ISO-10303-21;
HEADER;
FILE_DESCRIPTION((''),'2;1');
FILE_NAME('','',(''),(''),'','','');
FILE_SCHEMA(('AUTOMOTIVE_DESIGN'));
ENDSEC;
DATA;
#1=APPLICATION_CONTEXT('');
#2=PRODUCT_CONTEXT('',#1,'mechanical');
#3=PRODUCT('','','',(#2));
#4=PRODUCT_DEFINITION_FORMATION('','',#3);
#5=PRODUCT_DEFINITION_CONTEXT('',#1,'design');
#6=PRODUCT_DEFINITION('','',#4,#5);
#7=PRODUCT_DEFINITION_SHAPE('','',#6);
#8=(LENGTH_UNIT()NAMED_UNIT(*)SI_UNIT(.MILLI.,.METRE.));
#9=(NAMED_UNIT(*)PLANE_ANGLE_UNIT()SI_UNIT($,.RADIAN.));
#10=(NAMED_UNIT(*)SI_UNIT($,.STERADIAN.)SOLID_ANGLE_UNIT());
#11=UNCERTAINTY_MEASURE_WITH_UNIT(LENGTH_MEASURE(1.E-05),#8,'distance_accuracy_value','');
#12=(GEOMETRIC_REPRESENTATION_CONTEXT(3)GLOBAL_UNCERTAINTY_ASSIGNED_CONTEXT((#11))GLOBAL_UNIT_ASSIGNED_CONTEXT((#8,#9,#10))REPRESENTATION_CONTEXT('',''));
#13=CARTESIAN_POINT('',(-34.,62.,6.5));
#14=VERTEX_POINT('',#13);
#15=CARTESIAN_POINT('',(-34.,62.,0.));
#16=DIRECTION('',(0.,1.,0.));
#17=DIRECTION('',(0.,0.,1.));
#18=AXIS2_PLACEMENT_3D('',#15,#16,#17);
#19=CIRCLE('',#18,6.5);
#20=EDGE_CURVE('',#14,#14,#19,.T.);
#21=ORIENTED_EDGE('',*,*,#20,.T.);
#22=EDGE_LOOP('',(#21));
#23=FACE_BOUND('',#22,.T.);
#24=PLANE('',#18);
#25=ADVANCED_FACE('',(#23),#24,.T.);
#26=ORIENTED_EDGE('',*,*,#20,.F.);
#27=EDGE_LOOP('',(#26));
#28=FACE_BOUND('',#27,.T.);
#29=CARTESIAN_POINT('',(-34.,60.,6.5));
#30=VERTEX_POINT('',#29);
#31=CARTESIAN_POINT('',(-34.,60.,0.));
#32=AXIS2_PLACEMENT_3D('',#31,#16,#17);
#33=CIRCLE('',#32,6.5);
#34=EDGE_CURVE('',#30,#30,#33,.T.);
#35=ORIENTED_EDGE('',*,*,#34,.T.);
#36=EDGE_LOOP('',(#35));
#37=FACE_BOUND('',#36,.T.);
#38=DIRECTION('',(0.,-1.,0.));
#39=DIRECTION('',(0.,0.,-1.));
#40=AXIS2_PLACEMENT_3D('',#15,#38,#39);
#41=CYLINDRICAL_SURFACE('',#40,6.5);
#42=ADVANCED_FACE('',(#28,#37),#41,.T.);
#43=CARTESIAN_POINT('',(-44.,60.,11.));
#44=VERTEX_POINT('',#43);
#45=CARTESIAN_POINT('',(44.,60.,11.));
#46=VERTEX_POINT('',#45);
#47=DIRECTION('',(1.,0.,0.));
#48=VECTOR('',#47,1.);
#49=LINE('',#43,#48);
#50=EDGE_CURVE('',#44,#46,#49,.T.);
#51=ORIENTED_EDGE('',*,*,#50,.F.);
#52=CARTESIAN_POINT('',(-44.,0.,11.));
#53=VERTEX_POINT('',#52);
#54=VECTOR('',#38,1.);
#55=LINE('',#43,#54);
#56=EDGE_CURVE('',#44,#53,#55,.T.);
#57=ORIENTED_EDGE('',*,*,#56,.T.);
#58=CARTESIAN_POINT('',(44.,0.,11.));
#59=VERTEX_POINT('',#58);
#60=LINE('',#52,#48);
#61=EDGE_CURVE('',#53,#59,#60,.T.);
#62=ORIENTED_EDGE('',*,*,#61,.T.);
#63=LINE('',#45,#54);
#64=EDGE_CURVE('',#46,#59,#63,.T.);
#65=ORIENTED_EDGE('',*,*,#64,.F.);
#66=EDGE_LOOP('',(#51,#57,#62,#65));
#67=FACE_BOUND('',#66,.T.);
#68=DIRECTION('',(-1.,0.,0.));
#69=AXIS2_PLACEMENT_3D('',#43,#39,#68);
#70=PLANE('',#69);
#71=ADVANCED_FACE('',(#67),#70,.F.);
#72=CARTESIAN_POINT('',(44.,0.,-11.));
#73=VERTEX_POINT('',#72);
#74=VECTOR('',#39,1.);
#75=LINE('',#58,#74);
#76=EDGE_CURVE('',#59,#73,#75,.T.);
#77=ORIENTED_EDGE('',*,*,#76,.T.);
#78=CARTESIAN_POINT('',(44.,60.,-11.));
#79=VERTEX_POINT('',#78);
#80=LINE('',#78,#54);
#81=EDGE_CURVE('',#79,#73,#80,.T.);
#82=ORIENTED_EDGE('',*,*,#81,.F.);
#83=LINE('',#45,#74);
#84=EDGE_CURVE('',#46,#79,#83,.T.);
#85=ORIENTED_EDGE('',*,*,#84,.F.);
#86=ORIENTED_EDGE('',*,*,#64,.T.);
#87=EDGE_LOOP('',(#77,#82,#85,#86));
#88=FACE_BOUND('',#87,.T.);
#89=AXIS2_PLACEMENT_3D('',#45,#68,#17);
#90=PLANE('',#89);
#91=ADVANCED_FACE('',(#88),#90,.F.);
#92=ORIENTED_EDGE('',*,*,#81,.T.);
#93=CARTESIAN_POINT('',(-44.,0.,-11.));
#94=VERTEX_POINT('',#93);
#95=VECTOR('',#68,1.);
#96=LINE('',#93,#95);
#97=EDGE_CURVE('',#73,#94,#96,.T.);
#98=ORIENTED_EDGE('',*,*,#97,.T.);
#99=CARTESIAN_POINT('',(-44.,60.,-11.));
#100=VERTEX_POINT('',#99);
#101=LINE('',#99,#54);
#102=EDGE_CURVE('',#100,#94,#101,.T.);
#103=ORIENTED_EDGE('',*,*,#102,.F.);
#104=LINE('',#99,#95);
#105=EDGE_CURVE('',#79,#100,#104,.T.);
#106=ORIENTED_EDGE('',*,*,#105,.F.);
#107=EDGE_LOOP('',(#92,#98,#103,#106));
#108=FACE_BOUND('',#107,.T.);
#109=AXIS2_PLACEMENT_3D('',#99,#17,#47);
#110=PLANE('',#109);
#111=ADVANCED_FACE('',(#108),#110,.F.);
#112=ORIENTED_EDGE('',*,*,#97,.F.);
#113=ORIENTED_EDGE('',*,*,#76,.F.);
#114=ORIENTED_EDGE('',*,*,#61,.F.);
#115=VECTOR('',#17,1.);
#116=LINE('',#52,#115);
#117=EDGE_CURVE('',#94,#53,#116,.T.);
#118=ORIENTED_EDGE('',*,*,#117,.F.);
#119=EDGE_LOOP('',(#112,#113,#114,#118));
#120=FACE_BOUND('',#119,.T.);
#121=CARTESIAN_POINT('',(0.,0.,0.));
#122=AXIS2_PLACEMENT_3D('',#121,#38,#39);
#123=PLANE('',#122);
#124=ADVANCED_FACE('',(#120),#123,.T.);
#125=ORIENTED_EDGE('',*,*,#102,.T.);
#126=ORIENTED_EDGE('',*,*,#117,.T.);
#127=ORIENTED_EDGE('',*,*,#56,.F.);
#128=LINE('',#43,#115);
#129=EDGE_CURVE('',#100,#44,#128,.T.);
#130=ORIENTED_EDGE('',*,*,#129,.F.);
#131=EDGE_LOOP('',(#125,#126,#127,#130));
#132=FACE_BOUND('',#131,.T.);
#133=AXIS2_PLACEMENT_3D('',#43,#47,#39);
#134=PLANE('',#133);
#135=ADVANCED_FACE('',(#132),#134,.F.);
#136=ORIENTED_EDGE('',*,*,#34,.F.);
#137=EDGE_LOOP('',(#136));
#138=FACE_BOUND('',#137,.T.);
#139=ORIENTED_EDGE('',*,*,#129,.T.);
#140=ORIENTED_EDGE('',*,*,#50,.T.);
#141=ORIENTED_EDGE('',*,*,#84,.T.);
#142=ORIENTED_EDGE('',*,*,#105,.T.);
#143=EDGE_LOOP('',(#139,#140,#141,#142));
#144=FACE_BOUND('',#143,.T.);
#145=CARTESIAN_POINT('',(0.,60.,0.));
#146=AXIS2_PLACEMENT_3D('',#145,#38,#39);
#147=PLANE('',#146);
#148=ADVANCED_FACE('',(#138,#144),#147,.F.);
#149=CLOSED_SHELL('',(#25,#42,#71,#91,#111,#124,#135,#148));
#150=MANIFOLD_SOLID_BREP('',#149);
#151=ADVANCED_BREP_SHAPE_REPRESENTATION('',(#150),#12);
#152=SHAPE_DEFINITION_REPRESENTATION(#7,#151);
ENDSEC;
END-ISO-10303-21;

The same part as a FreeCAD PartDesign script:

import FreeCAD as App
import Part
import Sketcher


def add_polygon(sketch, points):
    """Adds a closed chain of lines whose ends are joined by coincident constraints."""
    first, n = sketch.GeometryCount, len(points)
    for a, b in zip(points, points[1:] + points[:1]):
        sketch.addGeometry(Part.LineSegment(App.Vector(*a, 0), App.Vector(*b, 0)), False)
    for i in range(n):
        sketch.addConstraint(Sketcher.Constraint("Coincident", first + i, 2, first + (i + 1) % n, 1))

doc = App.newDocument("Part")
body = doc.addObject("PartDesign::Body", "Body")

# Sketch on XZ plane
sketch1 = body.newObject("Sketcher::SketchObject", "Sketch")
sketch1.AttachmentSupport = (doc.getObject("XZ_Plane"), [""])
sketch1.MapMode = "FlatFace"
add_polygon(sketch1, [(-44, -11), (-44, 11), (44, 11), (44, -11)])  # lines 0-3
sketch1.addGeometry(Part.Circle(App.Vector(-34, 0, 0), App.Vector(0, 0, 1), 6), False)  # 4
sketch1.addConstraint(Sketcher.Constraint("Vertical", 0))
sketch1.addConstraint(Sketcher.Constraint("Horizontal", 1))
sketch1.addConstraint(Sketcher.Constraint("Vertical", 2))
sketch1.addConstraint(Sketcher.Constraint("Horizontal", 3))
sketch1.addConstraint(Sketcher.Constraint("Symmetric", 0, 2, 2, 2, -1, 1))
sketch1.addConstraint(Sketcher.Constraint("PointOnObject", 4, 3, -1))
sketch1.addConstraint(Sketcher.Constraint("Diameter", 4, 13.0))
sketch1.addConstraint(Sketcher.Constraint("DistanceX", 1, 1, 1, 2, 88.0))
sketch1.addConstraint(Sketcher.Constraint("DistanceY", 0, 1, 0, 2, 22.0))
sketch1.addConstraint(Sketcher.Constraint("DistanceX", 4, 3, -1, 1, 34.0))
pad1 = body.newObject("PartDesign::Pad", "Pad")
pad1.Profile = sketch1
pad1.Length = 60
pad1.Reversed = True

# Sketch on XZ plane
sketch2 = body.newObject("Sketcher::SketchObject", "Sketch001")
sketch2.AttachmentSupport = (doc.getObject("XZ_Plane"), [""])
sketch2.MapMode = "FlatFace"
sketch2.addGeometry(Part.Circle(App.Vector(-34, 0, 0), App.Vector(0, 0, 1), 6), False)
sketch2.addConstraint(Sketcher.Constraint("PointOnObject", 0, 3, -1))
sketch2.addConstraint(Sketcher.Constraint("Diameter", 0, 13.0))
sketch2.addConstraint(Sketcher.Constraint("DistanceX", 0, 3, -1, 1, 34.0))
pad2 = body.newObject("PartDesign::Pad", "Pad001")
pad2.Profile = sketch2
pad2.Length = 62
pad2.Reversed = True

doc.recompute()
